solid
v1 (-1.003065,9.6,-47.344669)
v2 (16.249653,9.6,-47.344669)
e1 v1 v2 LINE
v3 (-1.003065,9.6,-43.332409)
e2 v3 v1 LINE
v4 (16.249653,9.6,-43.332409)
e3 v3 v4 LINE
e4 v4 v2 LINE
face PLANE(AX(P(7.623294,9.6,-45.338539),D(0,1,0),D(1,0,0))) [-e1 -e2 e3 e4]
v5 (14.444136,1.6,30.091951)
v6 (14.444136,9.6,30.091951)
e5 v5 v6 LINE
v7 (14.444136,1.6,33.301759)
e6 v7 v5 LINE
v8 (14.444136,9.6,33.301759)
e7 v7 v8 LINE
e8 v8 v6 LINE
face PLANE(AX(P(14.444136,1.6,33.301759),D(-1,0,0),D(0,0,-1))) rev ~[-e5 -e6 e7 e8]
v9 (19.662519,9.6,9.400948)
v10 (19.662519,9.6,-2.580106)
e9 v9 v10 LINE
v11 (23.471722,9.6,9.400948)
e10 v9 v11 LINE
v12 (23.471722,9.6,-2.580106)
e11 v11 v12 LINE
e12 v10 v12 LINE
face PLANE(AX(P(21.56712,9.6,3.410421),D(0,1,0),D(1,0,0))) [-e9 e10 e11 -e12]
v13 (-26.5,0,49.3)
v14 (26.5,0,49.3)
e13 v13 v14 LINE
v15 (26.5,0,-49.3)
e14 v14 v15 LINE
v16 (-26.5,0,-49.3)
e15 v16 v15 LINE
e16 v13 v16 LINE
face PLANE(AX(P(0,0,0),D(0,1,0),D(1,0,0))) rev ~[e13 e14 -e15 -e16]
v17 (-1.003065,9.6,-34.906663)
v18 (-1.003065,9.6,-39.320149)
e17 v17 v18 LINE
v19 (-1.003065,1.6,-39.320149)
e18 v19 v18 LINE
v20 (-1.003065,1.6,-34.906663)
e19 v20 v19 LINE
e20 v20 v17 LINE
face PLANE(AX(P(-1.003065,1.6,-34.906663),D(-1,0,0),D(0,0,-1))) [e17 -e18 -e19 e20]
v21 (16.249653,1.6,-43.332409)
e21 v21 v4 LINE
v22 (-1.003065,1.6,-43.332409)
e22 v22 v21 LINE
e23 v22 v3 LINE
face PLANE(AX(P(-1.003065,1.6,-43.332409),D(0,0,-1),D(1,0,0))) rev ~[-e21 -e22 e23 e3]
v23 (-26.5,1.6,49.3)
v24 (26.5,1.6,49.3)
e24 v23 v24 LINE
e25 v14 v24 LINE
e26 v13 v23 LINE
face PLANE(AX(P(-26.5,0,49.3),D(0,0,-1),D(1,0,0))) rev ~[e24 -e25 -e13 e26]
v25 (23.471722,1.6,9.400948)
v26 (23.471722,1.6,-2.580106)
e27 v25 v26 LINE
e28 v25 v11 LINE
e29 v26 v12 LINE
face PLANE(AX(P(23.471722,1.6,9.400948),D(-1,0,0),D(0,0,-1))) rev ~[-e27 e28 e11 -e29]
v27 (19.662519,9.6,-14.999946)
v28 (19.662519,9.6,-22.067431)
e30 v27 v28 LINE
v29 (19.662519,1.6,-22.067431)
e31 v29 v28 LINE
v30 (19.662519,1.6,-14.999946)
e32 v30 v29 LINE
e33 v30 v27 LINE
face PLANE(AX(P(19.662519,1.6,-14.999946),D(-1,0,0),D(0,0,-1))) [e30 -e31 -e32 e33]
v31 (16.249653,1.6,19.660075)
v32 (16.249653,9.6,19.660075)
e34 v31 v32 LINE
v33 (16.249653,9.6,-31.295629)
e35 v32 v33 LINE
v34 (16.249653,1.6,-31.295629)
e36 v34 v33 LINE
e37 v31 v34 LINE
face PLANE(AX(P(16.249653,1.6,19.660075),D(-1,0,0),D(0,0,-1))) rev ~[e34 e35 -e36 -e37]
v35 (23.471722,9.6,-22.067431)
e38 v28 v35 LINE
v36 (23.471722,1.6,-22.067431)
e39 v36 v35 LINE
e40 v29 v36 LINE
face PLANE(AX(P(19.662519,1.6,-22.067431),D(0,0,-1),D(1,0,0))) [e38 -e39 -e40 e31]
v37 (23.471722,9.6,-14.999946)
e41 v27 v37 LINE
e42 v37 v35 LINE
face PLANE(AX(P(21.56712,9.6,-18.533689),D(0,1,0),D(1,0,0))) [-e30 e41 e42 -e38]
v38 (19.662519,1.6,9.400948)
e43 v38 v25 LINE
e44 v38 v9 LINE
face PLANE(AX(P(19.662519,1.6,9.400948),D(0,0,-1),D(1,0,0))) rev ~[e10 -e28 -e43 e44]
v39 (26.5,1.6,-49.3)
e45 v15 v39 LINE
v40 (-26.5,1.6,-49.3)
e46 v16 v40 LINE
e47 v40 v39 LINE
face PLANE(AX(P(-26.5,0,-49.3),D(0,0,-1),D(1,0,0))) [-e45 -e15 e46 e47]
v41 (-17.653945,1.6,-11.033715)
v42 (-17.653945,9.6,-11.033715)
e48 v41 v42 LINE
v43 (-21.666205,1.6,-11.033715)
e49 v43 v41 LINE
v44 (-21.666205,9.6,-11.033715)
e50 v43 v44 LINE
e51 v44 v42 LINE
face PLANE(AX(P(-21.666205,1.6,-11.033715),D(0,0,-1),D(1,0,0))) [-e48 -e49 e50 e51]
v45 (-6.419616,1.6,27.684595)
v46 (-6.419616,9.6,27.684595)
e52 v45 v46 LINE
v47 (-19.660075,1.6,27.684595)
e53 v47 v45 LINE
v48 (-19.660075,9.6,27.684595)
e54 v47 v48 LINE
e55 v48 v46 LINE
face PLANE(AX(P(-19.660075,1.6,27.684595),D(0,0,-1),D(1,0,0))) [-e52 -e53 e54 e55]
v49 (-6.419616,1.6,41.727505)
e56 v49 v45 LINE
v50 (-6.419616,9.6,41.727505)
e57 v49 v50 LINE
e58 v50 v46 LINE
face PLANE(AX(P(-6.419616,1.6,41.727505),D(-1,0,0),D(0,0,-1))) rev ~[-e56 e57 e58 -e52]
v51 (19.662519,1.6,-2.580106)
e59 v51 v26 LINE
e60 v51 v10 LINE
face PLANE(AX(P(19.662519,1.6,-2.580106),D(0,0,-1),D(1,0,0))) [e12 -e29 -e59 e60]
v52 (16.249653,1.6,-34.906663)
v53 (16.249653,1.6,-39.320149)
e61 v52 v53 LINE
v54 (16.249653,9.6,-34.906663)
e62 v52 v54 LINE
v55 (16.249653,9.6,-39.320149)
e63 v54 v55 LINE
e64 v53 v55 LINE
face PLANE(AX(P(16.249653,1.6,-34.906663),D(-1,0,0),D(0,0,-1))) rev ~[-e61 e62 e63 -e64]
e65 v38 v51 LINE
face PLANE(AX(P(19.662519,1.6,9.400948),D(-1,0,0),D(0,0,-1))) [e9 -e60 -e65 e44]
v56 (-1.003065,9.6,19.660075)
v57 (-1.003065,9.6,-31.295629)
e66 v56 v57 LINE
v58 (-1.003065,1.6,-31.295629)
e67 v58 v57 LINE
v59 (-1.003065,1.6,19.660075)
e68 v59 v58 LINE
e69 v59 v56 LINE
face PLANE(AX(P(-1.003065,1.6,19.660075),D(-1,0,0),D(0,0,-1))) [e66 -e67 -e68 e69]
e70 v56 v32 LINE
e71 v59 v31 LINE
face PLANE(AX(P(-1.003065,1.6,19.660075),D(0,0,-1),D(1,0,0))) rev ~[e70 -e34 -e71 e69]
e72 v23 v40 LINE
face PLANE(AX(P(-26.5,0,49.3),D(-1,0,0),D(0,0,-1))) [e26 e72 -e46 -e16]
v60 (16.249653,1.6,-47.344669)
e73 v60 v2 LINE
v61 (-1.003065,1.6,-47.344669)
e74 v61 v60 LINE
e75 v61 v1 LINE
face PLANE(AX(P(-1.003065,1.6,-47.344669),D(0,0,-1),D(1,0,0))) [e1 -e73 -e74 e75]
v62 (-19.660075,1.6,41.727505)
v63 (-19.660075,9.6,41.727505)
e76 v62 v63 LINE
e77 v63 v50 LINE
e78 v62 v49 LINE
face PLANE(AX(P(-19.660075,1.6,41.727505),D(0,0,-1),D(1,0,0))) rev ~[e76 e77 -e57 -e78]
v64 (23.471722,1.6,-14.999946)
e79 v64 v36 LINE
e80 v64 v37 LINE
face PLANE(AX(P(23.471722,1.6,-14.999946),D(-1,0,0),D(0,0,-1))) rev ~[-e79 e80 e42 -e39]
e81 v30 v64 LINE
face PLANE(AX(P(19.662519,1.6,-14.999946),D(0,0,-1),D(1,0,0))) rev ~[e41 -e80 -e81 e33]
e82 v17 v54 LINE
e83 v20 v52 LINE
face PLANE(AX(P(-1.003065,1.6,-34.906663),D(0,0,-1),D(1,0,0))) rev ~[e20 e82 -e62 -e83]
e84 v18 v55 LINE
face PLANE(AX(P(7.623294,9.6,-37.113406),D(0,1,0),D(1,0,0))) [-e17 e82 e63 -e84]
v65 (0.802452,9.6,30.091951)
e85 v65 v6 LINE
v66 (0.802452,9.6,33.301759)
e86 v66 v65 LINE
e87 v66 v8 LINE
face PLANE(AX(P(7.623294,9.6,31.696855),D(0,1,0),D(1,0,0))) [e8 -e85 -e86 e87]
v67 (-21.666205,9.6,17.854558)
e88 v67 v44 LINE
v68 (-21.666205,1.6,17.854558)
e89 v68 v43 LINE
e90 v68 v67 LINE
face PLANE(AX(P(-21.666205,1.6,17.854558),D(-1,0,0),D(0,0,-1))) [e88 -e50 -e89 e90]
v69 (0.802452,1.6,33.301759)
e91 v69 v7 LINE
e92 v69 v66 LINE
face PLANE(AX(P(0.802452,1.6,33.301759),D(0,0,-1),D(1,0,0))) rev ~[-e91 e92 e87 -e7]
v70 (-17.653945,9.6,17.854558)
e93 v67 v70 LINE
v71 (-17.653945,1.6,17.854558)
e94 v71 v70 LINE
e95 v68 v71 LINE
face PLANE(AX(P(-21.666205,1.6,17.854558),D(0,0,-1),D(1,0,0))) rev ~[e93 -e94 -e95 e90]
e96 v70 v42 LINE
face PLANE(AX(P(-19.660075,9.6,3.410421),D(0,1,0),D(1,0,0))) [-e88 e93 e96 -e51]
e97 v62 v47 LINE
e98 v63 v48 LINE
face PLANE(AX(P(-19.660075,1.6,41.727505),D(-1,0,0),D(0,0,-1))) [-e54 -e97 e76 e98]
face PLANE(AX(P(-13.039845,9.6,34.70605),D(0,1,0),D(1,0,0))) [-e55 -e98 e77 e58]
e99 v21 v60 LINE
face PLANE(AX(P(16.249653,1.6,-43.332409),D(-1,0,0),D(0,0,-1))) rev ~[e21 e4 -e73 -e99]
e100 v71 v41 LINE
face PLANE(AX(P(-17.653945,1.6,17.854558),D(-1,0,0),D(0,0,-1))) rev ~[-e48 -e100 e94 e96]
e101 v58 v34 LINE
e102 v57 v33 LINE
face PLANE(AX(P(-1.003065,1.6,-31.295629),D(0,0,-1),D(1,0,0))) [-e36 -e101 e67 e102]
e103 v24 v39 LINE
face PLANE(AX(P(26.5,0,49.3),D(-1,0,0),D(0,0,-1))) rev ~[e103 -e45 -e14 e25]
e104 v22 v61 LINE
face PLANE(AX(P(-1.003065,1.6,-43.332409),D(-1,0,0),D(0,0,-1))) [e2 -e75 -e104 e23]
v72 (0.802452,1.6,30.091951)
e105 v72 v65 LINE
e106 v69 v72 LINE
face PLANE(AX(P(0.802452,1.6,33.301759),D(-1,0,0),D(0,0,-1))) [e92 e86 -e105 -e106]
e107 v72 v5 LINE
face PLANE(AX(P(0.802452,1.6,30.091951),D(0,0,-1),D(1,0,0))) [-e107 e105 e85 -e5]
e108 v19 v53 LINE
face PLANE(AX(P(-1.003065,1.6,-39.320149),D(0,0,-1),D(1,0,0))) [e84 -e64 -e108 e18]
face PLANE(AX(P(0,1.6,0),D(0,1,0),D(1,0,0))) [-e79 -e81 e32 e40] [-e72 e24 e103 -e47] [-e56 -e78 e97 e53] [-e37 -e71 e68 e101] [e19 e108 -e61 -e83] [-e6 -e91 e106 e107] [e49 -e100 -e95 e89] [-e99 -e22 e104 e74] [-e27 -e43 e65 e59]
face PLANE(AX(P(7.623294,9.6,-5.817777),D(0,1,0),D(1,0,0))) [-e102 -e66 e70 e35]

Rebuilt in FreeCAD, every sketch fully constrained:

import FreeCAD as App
import Part
import Sketcher
from FreeCAD import Vector
Q = App.Units.Quantity

doc = App.newDocument("Part")
body = doc.addObject("PartDesign::Body", "Body")

sketch1 = doc.addObject("Sketcher::SketchObject", "Sketch")
body.addObject(sketch1)
sketch1.AttachmentSupport = (doc.XZ_Plane, [""])
sketch1.MapMode = "FlatFace"
sketch1.addGeometry(Part.LineSegment(Vector(-26.5, -49.3, 0), Vector(-26.5, 49.3, 0)), False)
sketch1.addGeometry(Part.LineSegment(Vector(-26.5, 49.3, 0), Vector(26.5, 49.3, 0)), False)
sketch1.addGeometry(Part.LineSegment(Vector(26.5, 49.3, 0), Vector(26.5, -49.3, 0)), False)
sketch1.addGeometry(Part.LineSegment(Vector(26.5, -49.3, 0), Vector(-26.5, -49.3, 0)), False)
sketch1.addConstraint(Sketcher.Constraint("Coincident", 0, 2, 1, 1))
sketch1.addConstraint(Sketcher.Constraint("Coincident", 1, 2, 2, 1))
sketch1.addConstraint(Sketcher.Constraint("Coincident", 2, 2, 3, 1))
sketch1.addConstraint(Sketcher.Constraint("Coincident", 3, 2, 0, 1))
sketch1.addConstraint(Sketcher.Constraint("Vertical", 0))
sketch1.addConstraint(Sketcher.Constraint("Horizontal", 1))
sketch1.addConstraint(Sketcher.Constraint("Vertical", 2))
sketch1.addConstraint(Sketcher.Constraint("Horizontal", 3))
sketch1.addConstraint(Sketcher.Constraint("Symmetric", 0, 2, 2, 2, -1, 1))
sketch1.addConstraint(Sketcher.Constraint("DistanceX", 1, 1, 1, 2, Q("53 mm")))
sketch1.addConstraint(Sketcher.Constraint("DistanceY", 0, 1, 0, 2, Q("98.6 mm")))
pad1 = doc.addObject("PartDesign::Pad", "Pad")
body.addObject(pad1)
pad1.Profile = sketch1
pad1.Length = 1.6
pad1.Reversed = True

sketch2 = doc.addObject("Sketcher::SketchObject", "Sketch001")
body.addObject(sketch2)
sketch2.AttachmentSupport = (doc.XZ_Plane, [""])
sketch2.MapMode = "FlatFace"
sketch2.AttachmentOffset = App.Placement(Vector(0, 0, -1.6), App.Rotation())
sketch2.addGeometry(Part.LineSegment(Vector(-1.003065, -31.295629, 0), Vector(-1.003065, 19.660075, 0)), False)
sketch2.addGeometry(Part.LineSegment(Vector(-1.003065, 19.660075, 0), Vector(16.249653, 19.660075, 0)), False)
sketch2.addGeometry(Part.LineSegment(Vector(16.249653, 19.660075, 0), Vector(16.249653, -31.295629, 0)), False)
sketch2.addGeometry(Part.LineSegment(Vector(16.249653, -31.295629, 0), Vector(-1.003065, -31.295629, 0)), False)
sketch2.addGeometry(Part.LineSegment(Vector(-19.660075, 27.684595, 0), Vector(-19.660075, 41.727505, 0)), False)
sketch2.addGeometry(Part.LineSegment(Vector(-19.660075, 41.727505, 0), Vector(-6.419616, 41.727505, 0)), False)
sketch2.addGeometry(Part.LineSegment(Vector(-6.419616, 41.727505, 0), Vector(-6.419616, 27.684595, 0)), False)
sketch2.addGeometry(Part.LineSegment(Vector(-6.419616, 27.684595, 0), Vector(-19.660075, 27.684595, 0)), False)
sketch2.addGeometry(Part.LineSegment(Vector(-21.666205, -11.033715, 0), Vector(-21.666205, 17.854558, 0)), False)
sketch2.addGeometry(Part.LineSegment(Vector(-21.666205, 17.854558, 0), Vector(-17.653945, 17.854558, 0)), False)
sketch2.addGeometry(Part.LineSegment(Vector(-17.653945, 17.854558, 0), Vector(-17.653945, -11.033715, 0)), False)
sketch2.addGeometry(Part.LineSegment(Vector(-17.653945, -11.033715, 0), Vector(-21.666205, -11.033715, 0)), False)
sketch2.addGeometry(Part.LineSegment(Vector(-1.003065, -47.344669, 0), Vector(-1.003065, -43.332409, 0)), False)
sketch2.addGeometry(Part.LineSegment(Vector(-1.003065, -43.332409, 0), Vector(16.249653, -43.332409, 0)), False)
sketch2.addGeometry(Part.LineSegment(Vector(16.249653, -43.332409, 0), Vector(16.249653, -47.344669, 0)), False)
sketch2.addGeometry(Part.LineSegment(Vector(16.249653, -47.344669, 0), Vector(-1.003065, -47.344669, 0)), False)
sketch2.addGeometry(Part.LineSegment(Vector(-1.003065, -39.320149, 0), Vector(-1.003065, -34.906663, 0)), False)
sketch2.addGeometry(Part.LineSegment(Vector(-1.003065, -34.906663, 0), Vector(16.249653, -34.906663, 0)), False)
sketch2.addGeometry(Part.LineSegment(Vector(16.249653, -34.906663, 0), Vector(16.249653, -39.320149, 0)), False)
sketch2.addGeometry(Part.LineSegment(Vector(16.249653, -39.320149, 0), Vector(-1.003065, -39.320149, 0)), False)
sketch2.addGeometry(Part.LineSegment(Vector(19.662519, -22.067431, 0), Vector(19.662519, -14.999946, 0)), False)
sketch2.addGeometry(Part.LineSegment(Vector(19.662519, -14.999946, 0), Vector(23.471722, -14.999946, 0)), False)
sketch2.addGeometry(Part.LineSegment(Vector(23.471722, -14.999946, 0), Vector(23.471722, -22.067431, 0)), False)
sketch2.addGeometry(Part.LineSegment(Vector(23.471722, -22.067431, 0), Vector(19.662519, -22.067431, 0)), False)
sketch2.addGeometry(Part.LineSegment(Vector(19.662519, -2.580106, 0), Vector(19.662519, 9.400948, 0)), False)
sketch2.addGeometry(Part.LineSegment(Vector(19.662519, 9.400948, 0), Vector(23.471722, 9.400948, 0)), False)
sketch2.addGeometry(Part.LineSegment(Vector(23.471722, 9.400948, 0), Vector(23.471722, -2.580106, 0)), False)
sketch2.addGeometry(Part.LineSegment(Vector(23.471722, -2.580106, 0), Vector(19.662519, -2.580106, 0)), False)
sketch2.addGeometry(Part.LineSegment(Vector(0.802452, 30.091951, 0), Vector(0.802452, 33.301759, 0)), False)
sketch2.addGeometry(Part.LineSegment(Vector(0.802452, 33.301759, 0), Vector(14.444136, 33.301759, 0)), False)
sketch2.addGeometry(Part.LineSegment(Vector(14.444136, 33.301759, 0), Vector(14.444136, 30.091951, 0)), False)
sketch2.addGeometry(Part.LineSegment(Vector(14.444136, 30.091951, 0), Vector(0.802452, 30.091951, 0)), False)
sketch2.addConstraint(Sketcher.Constraint("Coincident", 0, 2, 1, 1))
sketch2.addConstraint(Sketcher.Constraint("Coincident", 1, 2, 2, 1))
sketch2.addConstraint(Sketcher.Constraint("Coincident", 2, 2, 3, 1))
sketch2.addConstraint(Sketcher.Constraint("Coincident", 3, 2, 0, 1))
sketch2.addConstraint(Sketcher.Constraint("Coincident", 4, 2, 5, 1))
sketch2.addConstraint(Sketcher.Constraint("Coincident", 5, 2, 6, 1))
sketch2.addConstraint(Sketcher.Constraint("Coincident", 6, 2, 7, 1))
sketch2.addConstraint(Sketcher.Constraint("Coincident", 7, 2, 4, 1))
sketch2.addConstraint(Sketcher.Constraint("Coincident", 8, 2, 9, 1))
sketch2.addConstraint(Sketcher.Constraint("Coincident", 9, 2, 10, 1))
sketch2.addConstraint(Sketcher.Constraint("Coincident", 10, 2, 11, 1))
sketch2.addConstraint(Sketcher.Constraint("Coincident", 11, 2, 8, 1))
sketch2.addConstraint(Sketcher.Constraint("Coincident", 12, 2, 13, 1))
sketch2.addConstraint(Sketcher.Constraint("Coincident", 13, 2, 14, 1))
sketch2.addConstraint(Sketcher.Constraint("Coincident", 14, 2, 15, 1))
sketch2.addConstraint(Sketcher.Constraint("Coincident", 15, 2, 12, 1))
sketch2.addConstraint(Sketcher.Constraint("Coincident", 16, 2, 17, 1))
sketch2.addConstraint(Sketcher.Constraint("Coincident", 17, 2, 18, 1))
sketch2.addConstraint(Sketcher.Constraint("Coincident", 18, 2, 19, 1))
sketch2.addConstraint(Sketcher.Constraint("Coincident", 19, 2, 16, 1))
sketch2.addConstraint(Sketcher.Constraint("Coincident", 20, 2, 21, 1))
sketch2.addConstraint(Sketcher.Constraint("Coincident", 21, 2, 22, 1))
sketch2.addConstraint(Sketcher.Constraint("Coincident", 22, 2, 23, 1))
sketch2.addConstraint(Sketcher.Constraint("Coincident", 23, 2, 20, 1))
sketch2.addConstraint(Sketcher.Constraint("Coincident", 24, 2, 25, 1))
sketch2.addConstraint(Sketcher.Constraint("Coincident", 25, 2, 26, 1))
sketch2.addConstraint(Sketcher.Constraint("Coincident", 26, 2, 27, 1))
sketch2.addConstraint(Sketcher.Constraint("Coincident", 27, 2, 24, 1))
sketch2.addConstraint(Sketcher.Constraint("Coincident", 28, 2, 29, 1))
sketch2.addConstraint(Sketcher.Constraint("Coincident", 29, 2, 30, 1))
sketch2.addConstraint(Sketcher.Constraint("Coincident", 30, 2, 31, 1))
sketch2.addConstraint(Sketcher.Constraint("Coincident", 31, 2, 28, 1))
sketch2.addConstraint(Sketcher.Constraint("Vertical", 0))
sketch2.addConstraint(Sketcher.Constraint("Horizontal", 1))
sketch2.addConstraint(Sketcher.Constraint("Vertical", 2))
sketch2.addConstraint(Sketcher.Constraint("Horizontal", 3))
sketch2.addConstraint(Sketcher.Constraint("Vertical", 4))
sketch2.addConstraint(Sketcher.Constraint("Horizontal", 5))
sketch2.addConstraint(Sketcher.Constraint("Vertical", 6))
sketch2.addConstraint(Sketcher.Constraint("Horizontal", 7))
sketch2.addConstraint(Sketcher.Constraint("Vertical", 8))
sketch2.addConstraint(Sketcher.Constraint("Horizontal", 9))
sketch2.addConstraint(Sketcher.Constraint("Vertical", 10))
sketch2.addConstraint(Sketcher.Constraint("Horizontal", 11))
sketch2.addConstraint(Sketcher.Constraint("Vertical", 12))
sketch2.addConstraint(Sketcher.Constraint("Horizontal", 13))
sketch2.addConstraint(Sketcher.Constraint("Vertical", 14))
sketch2.addConstraint(Sketcher.Constraint("Horizontal", 15))
sketch2.addConstraint(Sketcher.Constraint("Vertical", 16))
sketch2.addConstraint(Sketcher.Constraint("Horizontal", 17))
sketch2.addConstraint(Sketcher.Constraint("Vertical", 18))
sketch2.addConstraint(Sketcher.Constraint("Horizontal", 19))
sketch2.addConstraint(Sketcher.Constraint("Vertical", 20))
sketch2.addConstraint(Sketcher.Constraint("Horizontal", 21))
sketch2.addConstraint(Sketcher.Constraint("Vertical", 22))
sketch2.addConstraint(Sketcher.Constraint("Horizontal", 23))
sketch2.addConstraint(Sketcher.Constraint("Vertical", 24))
sketch2.addConstraint(Sketcher.Constraint("Horizontal", 25))
sketch2.addConstraint(Sketcher.Constraint("Vertical", 26))
sketch2.addConstraint(Sketcher.Constraint("Horizontal", 27))
sketch2.addConstraint(Sketcher.Constraint("Vertical", 28))
sketch2.addConstraint(Sketcher.Constraint("Horizontal", 29))
sketch2.addConstraint(Sketcher.Constraint("Vertical", 30))
sketch2.addConstraint(Sketcher.Constraint("Horizontal", 31))
sketch2.addConstraint(Sketcher.Constraint("Vertical", 3, 2, 12, 2))
sketch2.addConstraint(Sketcher.Constraint("Vertical", 2, 2, 13, 2))
sketch2.addConstraint(Sketcher.Constraint("Vertical", 15, 2, 16, 2))
sketch2.addConstraint(Sketcher.Constraint("Vertical", 14, 2, 17, 2))
sketch2.addConstraint(Sketcher.Constraint("Vertical", 23, 2, 24, 2))
sketch2.addConstraint(Sketcher.Constraint("Vertical", 22, 2, 25, 2))
sketch2.addConstraint(Sketcher.Constraint("Equal", 11, 12))
sketch2.addConstraint(Sketcher.Constraint("DistanceX", 1, 1, 1, 2, Q("17.252719 mm")))
sketch2.addConstraint(Sketcher.Constraint("DistanceX", 5, 1, 5, 2, Q("13.240458 mm")))
sketch2.addConstraint(Sketcher.Constraint("DistanceX", 9, 1, 9, 2, Q("4.01226 mm")))
sketch2.addConstraint(Sketcher.Constraint("DistanceY", 4, 1, 4, 2, Q("14.04291 mm")))
sketch2.addConstraint(Sketcher.Constraint("DistanceY", 28, 1, 28, 2, Q("3.209808 mm")))
sketch2.addConstraint(Sketcher.Constraint("DistanceY", 2, 2, 22, 2, Q("9.228198 mm")))
sketch2.addConstraint(Sketcher.Constraint("DistanceX", 28, 2, 1, 2, Q("15.447201 mm")))
sketch2.addConstraint(Sketcher.Constraint("DistanceX", 0, 2, 29, 2, Q("15.447201 mm")))
sketch2.addConstraint(Sketcher.Constraint("DistanceX", 21, 1, 21, 2, Q("3.809203 mm")))
sketch2.addConstraint(Sketcher.Constraint("DistanceY", 0, 1, 0, 2, Q("50.955703 mm")))
sketch2.addConstraint(Sketcher.Constraint("DistanceY", 8, 1, 8, 2, Q("28.888273 mm")))
sketch2.addConstraint(Sketcher.Constraint("DistanceY", 16, 1, 16, 2, Q("4.413486 mm")))
sketch2.addConstraint(Sketcher.Constraint("DistanceY", 20, 1, 20, 2, Q("7.067484 mm")))
sketch2.addConstraint(Sketcher.Constraint("DistanceY", 24, 1, 24, 2, Q("11.981055 mm")))
sketch2.addConstraint(Sketcher.Constraint("DistanceY", 2, 2, -1, 1, Q("31.295629 mm")))
sketch2.addConstraint(Sketcher.Constraint("DistanceY", 12, 2, -1, 1, Q("43.332409 mm")))
sketch2.addConstraint(Sketcher.Constraint("DistanceY", 18, 2, -1, 1, Q("39.320149 mm")))
sketch2.addConstraint(Sketcher.Constraint("DistanceX", -1, 1, 20, 2, Q("19.662519 mm")))
sketch2.addConstraint(Sketcher.Constraint("DistanceY", -1, 1, 24, 2, Q("9.400948 mm")))
sketch2.addConstraint(Sketcher.Constraint("DistanceY", -1, 1, 28, 2, Q("33.301759 mm")))
sketch2.addConstraint(Sketcher.Constraint("DistanceX", 4, 2, 0, 2, Q("18.65701 mm")))
sketch2.addConstraint(Sketcher.Constraint("DistanceY", 0, 2, 4, 2, Q("22.067431 mm")))
sketch2.addConstraint(Sketcher.Constraint("DistanceX", 8, 2, 7, 2, Q("2.00613 mm")))
sketch2.addConstraint(Sketcher.Constraint("DistanceY", 10, 2, 0, 2, Q("30.69379 mm")))
sketch2.addConstraint(Sketcher.Constraint("DistanceX", 2, 2, 21, 2, Q("7.222068 mm")))
pad2 = doc.addObject("PartDesign::Pad", "Pad001")
body.addObject(pad2)
pad2.Profile = sketch2
pad2.Length = 8
pad2.Reversed = True

doc.recompute()
